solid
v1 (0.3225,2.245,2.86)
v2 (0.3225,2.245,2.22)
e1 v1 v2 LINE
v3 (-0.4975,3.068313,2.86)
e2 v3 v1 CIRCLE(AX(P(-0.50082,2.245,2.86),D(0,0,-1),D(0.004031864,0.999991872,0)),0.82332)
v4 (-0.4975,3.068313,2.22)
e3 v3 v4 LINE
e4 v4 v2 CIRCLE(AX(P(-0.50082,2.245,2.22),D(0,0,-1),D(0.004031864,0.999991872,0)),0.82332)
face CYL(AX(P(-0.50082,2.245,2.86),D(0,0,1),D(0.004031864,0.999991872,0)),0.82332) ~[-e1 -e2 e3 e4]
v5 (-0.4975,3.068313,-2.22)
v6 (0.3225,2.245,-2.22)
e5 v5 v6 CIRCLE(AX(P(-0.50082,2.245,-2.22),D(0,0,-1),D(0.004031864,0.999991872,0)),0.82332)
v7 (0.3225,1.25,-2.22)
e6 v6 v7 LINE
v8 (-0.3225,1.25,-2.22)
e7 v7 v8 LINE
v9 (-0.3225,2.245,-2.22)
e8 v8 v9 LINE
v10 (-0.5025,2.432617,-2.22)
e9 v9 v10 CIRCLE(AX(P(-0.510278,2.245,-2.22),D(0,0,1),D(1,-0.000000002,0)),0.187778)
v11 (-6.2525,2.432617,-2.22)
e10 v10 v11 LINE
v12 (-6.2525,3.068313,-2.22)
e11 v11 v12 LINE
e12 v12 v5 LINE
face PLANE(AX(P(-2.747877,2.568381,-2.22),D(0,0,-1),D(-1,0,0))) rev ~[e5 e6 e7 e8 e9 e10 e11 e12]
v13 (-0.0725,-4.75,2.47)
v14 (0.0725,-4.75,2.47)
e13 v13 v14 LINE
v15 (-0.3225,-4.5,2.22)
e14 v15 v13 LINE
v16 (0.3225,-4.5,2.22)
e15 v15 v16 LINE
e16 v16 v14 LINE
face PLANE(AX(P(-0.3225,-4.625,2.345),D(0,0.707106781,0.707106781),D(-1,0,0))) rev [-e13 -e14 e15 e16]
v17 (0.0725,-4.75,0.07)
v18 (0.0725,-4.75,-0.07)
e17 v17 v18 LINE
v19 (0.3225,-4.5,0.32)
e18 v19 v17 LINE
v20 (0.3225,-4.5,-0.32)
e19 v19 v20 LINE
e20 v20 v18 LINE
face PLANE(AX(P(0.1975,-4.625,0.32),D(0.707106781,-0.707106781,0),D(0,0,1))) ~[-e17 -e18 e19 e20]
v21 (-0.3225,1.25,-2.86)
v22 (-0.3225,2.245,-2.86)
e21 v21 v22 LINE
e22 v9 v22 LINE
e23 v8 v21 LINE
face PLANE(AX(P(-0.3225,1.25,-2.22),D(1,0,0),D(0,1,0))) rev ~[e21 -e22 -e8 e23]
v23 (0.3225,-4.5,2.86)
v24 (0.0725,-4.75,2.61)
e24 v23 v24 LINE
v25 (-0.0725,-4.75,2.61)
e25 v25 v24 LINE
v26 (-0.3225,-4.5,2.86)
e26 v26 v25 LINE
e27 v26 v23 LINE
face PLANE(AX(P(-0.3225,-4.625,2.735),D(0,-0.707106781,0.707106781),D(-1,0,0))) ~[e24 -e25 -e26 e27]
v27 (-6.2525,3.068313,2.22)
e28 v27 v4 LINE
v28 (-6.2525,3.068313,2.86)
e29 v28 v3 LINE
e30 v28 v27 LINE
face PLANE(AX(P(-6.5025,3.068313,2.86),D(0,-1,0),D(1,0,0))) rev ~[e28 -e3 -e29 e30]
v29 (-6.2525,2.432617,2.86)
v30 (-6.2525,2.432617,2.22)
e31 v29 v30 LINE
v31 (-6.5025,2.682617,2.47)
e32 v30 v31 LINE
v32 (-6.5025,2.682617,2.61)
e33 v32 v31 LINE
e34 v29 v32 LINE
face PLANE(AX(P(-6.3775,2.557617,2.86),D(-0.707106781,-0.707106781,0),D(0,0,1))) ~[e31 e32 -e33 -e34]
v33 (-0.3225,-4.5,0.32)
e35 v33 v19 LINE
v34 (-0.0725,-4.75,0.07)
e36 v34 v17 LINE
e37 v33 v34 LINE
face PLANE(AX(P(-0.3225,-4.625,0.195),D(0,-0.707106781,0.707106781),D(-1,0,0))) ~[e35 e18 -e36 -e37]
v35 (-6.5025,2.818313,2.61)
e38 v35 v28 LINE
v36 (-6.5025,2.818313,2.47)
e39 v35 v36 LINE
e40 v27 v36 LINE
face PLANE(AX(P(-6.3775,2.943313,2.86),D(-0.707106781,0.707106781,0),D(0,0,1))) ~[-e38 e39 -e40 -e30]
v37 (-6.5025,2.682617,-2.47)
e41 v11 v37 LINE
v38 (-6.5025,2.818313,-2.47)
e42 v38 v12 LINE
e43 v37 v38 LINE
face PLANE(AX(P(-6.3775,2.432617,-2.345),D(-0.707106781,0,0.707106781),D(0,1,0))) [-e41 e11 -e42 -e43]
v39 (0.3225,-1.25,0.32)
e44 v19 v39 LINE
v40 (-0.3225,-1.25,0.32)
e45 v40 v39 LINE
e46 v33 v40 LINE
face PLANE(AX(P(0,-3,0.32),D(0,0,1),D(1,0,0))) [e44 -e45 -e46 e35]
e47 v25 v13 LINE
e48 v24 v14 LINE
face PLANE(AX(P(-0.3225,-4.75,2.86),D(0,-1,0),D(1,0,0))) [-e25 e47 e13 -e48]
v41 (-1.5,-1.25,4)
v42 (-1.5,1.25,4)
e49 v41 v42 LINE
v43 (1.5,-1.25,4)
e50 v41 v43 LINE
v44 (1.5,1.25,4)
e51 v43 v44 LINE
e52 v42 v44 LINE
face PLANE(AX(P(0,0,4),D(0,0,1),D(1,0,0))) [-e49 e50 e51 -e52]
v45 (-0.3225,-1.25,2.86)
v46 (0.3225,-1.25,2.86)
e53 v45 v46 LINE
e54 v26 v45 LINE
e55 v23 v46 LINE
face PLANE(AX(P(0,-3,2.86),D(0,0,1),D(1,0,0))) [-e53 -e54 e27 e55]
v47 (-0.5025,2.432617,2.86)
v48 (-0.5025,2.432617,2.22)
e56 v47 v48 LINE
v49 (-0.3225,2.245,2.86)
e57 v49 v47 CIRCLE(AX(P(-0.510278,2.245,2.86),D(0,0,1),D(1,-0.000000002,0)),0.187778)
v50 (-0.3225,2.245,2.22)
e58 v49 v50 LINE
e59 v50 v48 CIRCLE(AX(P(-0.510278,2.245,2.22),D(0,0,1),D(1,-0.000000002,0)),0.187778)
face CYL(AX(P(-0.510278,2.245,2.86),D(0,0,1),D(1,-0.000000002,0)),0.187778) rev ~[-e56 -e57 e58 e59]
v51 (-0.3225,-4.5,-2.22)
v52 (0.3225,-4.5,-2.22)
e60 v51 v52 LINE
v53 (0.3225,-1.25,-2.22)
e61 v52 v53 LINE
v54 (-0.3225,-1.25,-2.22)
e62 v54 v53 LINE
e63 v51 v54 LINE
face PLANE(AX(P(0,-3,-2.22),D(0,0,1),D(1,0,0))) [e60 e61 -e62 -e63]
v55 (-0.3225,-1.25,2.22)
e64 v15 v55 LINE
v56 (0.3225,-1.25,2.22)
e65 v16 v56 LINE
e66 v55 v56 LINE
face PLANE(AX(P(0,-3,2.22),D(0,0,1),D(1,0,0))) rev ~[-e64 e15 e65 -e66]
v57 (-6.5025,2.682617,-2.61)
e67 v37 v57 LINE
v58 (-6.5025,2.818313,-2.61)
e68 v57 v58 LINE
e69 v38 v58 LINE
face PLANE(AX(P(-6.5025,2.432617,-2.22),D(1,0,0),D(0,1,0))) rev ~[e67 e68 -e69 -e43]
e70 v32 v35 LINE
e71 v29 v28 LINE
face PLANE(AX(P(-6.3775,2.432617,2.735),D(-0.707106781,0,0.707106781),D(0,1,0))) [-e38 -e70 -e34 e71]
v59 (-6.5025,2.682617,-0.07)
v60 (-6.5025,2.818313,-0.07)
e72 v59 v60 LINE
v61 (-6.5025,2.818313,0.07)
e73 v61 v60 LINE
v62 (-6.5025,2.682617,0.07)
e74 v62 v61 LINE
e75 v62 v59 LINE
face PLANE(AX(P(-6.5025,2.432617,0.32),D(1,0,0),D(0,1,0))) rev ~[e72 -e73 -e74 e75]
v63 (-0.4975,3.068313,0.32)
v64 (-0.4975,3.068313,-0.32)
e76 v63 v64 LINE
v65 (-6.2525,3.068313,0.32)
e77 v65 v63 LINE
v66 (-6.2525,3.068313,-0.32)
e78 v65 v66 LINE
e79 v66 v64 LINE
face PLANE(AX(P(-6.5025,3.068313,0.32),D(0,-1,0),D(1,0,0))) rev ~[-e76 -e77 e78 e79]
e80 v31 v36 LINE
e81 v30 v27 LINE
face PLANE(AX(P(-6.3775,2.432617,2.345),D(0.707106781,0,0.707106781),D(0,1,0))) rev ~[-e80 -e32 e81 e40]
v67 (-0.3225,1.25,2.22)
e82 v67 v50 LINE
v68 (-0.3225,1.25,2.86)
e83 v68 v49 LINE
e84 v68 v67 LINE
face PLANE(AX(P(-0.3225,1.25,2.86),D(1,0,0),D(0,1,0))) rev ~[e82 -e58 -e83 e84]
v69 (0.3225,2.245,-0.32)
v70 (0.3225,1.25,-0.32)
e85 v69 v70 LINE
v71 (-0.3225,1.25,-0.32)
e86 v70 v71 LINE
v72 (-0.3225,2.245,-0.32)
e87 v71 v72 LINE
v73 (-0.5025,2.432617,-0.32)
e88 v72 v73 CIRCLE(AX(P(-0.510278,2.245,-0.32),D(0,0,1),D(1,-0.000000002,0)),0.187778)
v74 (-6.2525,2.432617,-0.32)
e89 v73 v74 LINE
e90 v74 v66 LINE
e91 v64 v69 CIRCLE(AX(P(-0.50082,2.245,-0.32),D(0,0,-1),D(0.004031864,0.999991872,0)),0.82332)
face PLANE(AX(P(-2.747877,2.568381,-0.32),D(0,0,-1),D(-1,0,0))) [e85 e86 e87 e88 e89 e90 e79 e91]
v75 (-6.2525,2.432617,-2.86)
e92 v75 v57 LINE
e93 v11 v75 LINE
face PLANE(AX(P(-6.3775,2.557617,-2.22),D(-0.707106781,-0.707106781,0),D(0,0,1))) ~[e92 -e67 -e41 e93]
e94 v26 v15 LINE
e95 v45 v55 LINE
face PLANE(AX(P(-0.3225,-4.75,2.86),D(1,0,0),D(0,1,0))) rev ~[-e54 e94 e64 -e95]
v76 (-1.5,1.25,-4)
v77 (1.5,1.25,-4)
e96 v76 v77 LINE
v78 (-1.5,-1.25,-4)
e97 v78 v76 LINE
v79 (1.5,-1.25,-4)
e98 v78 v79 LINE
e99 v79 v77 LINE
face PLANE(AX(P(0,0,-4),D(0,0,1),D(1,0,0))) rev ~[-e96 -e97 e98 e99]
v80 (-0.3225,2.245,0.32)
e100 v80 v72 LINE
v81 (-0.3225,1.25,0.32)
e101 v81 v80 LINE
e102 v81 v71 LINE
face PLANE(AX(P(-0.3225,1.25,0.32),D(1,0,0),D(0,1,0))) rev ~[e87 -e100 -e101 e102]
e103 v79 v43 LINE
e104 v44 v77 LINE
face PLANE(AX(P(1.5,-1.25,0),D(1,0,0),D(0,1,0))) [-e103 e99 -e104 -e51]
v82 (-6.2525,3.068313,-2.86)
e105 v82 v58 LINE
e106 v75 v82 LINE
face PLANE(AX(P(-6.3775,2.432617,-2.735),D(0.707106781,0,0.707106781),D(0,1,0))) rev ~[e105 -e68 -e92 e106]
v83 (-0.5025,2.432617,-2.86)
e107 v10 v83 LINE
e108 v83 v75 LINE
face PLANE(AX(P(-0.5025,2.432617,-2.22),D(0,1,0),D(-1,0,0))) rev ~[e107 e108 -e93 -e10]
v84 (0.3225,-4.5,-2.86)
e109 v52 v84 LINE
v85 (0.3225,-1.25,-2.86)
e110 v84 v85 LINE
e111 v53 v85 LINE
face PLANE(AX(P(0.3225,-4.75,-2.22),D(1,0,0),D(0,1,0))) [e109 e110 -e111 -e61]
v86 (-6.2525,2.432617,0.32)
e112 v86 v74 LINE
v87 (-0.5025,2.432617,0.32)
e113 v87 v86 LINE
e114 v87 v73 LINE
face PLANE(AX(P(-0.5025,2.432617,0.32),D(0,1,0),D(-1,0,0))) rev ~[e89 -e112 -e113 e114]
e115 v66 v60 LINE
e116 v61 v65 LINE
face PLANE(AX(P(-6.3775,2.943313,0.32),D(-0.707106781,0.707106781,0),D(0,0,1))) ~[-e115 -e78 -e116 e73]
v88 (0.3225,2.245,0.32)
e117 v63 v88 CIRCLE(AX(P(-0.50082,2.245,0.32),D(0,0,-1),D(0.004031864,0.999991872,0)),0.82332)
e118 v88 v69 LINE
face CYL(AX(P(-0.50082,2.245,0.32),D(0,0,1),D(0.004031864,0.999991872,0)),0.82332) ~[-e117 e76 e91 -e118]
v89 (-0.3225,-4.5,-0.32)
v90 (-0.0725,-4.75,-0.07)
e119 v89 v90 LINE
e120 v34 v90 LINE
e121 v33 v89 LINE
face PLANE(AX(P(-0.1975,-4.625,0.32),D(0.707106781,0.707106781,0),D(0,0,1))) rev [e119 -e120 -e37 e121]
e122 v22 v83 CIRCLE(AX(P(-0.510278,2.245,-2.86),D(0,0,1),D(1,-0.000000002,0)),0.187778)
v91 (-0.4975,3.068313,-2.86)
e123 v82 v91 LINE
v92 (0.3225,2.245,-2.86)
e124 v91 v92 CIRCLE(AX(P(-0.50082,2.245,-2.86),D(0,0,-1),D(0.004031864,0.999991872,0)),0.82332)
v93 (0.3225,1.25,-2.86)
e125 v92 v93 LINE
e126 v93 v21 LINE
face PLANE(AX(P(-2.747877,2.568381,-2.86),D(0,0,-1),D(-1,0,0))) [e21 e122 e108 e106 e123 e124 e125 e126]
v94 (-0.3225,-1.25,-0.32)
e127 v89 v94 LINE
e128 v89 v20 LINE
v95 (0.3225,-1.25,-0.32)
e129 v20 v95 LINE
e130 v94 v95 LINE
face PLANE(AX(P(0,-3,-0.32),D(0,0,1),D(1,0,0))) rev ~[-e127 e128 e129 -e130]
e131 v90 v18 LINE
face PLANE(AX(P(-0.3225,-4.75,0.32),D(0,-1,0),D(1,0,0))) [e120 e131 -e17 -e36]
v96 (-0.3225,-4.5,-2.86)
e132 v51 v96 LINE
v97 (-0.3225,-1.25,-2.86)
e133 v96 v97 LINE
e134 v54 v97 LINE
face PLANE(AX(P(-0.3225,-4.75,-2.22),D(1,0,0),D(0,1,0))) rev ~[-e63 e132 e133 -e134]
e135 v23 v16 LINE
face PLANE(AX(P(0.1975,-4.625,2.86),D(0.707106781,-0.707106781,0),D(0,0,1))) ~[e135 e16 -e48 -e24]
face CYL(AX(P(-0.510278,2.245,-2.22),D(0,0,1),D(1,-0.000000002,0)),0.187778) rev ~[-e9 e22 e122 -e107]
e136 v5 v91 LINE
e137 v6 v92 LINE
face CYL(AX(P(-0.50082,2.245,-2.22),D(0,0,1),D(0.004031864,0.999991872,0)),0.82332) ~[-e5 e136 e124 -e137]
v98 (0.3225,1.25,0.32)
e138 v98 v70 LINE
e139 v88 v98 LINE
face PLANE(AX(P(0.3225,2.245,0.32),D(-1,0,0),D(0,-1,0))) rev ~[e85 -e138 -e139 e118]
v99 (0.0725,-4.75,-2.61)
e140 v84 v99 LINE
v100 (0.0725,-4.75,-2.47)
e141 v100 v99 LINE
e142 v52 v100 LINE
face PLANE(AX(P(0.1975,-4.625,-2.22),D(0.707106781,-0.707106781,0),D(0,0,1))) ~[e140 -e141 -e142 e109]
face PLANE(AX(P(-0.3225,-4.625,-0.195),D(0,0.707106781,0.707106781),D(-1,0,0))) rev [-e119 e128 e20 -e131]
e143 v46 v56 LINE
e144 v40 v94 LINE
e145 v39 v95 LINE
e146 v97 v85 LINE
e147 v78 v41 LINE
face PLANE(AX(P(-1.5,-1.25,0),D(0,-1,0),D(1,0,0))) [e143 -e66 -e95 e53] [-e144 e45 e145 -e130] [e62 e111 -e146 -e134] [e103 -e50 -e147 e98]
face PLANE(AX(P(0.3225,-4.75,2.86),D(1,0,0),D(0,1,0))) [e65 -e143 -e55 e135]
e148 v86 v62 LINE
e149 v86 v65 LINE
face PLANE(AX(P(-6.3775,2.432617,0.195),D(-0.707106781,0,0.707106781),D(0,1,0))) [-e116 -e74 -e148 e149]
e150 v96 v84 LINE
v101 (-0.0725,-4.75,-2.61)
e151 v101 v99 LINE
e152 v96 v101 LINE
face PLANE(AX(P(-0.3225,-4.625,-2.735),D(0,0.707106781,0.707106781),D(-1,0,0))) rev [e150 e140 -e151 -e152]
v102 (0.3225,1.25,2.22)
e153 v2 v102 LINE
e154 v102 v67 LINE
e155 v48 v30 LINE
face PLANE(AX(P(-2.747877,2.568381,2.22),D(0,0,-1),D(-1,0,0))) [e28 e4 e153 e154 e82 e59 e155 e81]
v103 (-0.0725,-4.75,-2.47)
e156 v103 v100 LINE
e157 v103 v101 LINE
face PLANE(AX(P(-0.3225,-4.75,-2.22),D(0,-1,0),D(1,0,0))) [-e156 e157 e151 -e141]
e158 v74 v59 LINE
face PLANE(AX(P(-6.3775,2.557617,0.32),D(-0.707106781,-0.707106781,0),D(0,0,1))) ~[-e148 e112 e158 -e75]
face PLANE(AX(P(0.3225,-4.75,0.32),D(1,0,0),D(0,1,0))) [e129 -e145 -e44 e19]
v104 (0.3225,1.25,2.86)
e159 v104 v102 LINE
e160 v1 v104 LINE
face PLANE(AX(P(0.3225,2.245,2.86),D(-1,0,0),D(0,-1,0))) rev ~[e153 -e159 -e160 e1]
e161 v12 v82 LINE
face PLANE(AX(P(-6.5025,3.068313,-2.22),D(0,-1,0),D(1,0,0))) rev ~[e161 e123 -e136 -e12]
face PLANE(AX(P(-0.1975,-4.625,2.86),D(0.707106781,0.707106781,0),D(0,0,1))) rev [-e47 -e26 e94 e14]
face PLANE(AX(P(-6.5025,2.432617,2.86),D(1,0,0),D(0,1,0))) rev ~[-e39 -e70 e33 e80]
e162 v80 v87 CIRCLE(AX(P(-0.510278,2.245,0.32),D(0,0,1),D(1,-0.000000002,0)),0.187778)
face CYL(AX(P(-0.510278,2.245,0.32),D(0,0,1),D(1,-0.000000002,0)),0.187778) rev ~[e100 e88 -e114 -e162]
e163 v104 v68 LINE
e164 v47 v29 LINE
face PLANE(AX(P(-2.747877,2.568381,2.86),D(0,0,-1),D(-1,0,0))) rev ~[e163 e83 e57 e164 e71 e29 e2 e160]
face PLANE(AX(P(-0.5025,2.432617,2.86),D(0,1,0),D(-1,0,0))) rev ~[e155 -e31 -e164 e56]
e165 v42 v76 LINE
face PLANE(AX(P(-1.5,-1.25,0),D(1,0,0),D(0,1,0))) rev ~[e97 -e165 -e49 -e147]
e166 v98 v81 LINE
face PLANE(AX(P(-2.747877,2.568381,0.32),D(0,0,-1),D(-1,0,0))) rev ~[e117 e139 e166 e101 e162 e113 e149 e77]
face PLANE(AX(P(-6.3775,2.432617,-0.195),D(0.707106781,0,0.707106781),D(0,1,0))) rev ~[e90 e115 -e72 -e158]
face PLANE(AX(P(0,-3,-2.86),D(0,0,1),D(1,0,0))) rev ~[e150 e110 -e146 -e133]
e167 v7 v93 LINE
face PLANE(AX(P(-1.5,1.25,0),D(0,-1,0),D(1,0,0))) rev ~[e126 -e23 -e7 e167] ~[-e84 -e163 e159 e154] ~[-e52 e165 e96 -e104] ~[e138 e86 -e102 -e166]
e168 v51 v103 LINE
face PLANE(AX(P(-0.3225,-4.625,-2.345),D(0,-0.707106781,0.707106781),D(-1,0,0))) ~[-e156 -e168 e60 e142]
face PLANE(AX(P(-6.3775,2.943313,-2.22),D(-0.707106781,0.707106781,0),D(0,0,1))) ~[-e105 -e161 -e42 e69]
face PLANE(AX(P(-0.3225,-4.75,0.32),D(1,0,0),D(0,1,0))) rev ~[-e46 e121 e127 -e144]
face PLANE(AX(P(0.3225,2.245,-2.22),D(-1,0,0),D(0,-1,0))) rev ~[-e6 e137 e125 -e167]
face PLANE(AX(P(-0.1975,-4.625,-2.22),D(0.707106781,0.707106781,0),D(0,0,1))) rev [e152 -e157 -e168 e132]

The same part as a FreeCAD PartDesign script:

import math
import FreeCAD as App
import Part
import Sketcher

V = App.Vector
Q = App.Units.Quantity


def edges_at(feature, points):
    """Names of the edges that pass closest to the given points."""
    edges = feature.Shape.Edges
    near = lambda p: min(range(len(edges)), key=lambda i: edges[i].distToShape(Part.Vertex(*p))[0])
    return sorted({f"Edge{near(p) + 1}" for p in points})


def add_polygon(sketch, points):
    """Adds a closed chain of lines whose ends are joined by coincident constraints."""
    first, n = sketch.GeometryCount, len(points)
    for a, b in zip(points, points[1:] + points[:1]):
        sketch.addGeometry(Part.LineSegment(App.Vector(*a, 0), App.Vector(*b, 0)), False)
    for i in range(n):
        sketch.addConstraint(Sketcher.Constraint("Coincident", first + i, 2, first + (i + 1) % n, 1))

doc = App.newDocument("Part")
params = doc.addObject("Spreadsheet::Sheet", "Params")
for row, (alias, value) in enumerate([
    ("sketch1_width", "3 mm"),
    ("sketch1_height", "2.5 mm"),
    ("pad1_length", "8 mm"),
    ("sketch2_width", "6 mm"),
    ("sketch2_height", "3.5 mm"),
    ("pad2_length", "0.64 mm"),
    ("linearpattern_pitch", "2.54 mm"),
    ("chamfer_size", "0.25 mm"),
], start=1):
    params.set(f"A{row}", alias)
    params.set(f"B{row}", "=" + value)
    params.setAlias(f"B{row}", alias)

body = doc.addObject("PartDesign::Body", "Body")

sketch1 = body.newObject("Sketcher::SketchObject", "Sketch")
sketch1.AttachmentSupport = (doc.getObject("XY_Plane"), [""])
sketch1.MapMode = "FlatFace"
add_polygon(sketch1, [(-1.5, 1.2), (-1.5, -1.2), (1.5, -1.2), (1.5, 1.2)])
sketch1.addConstraint(Sketcher.Constraint("Vertical", 0))
sketch1.addConstraint(Sketcher.Constraint("Horizontal", 1))
sketch1.addConstraint(Sketcher.Constraint("Vertical", 2))
sketch1.addConstraint(Sketcher.Constraint("Horizontal", 3))
sketch1.addConstraint(Sketcher.Constraint("Symmetric", 0, 2, 2, 2, -1, 1))
sketch1.addConstraint(Sketcher.Constraint("DistanceX", 1, 1, 1, 2, Q("3 mm")))
sketch1.addConstraint(Sketcher.Constraint("DistanceY", 0, 2, 0, 1, Q("2.5 mm")))
sketch1.setExpression("Constraints[9]", "Params.sketch1_width")
sketch1.setExpression("Constraints[10]", "Params.sketch1_height")
pad1 = body.newObject("PartDesign::Pad", "Pad")
pad1.Profile = sketch1
pad1.setExpression("Length", "Params.pad1_length")
pad1.Midplane = True

sketch2 = body.newObject("Sketcher::SketchObject", "Sketch001")
sketch2.AttachmentSupport = (doc.getObject("XY_Plane"), [""])
sketch2.MapMode = "FlatFace"
sketch2.AttachmentOffset = App.Placement(V(0, 0, 2.86), App.Rotation())
sketch2.addGeometry(Part.LineSegment(V(-0.32, 2.25, 0), V(-0.32, 1.25, 0)), False)
sketch2.addGeometry(Part.LineSegment(V(-0.32, 1.25, 0), V(0.32, 1.25, 0)), False)
sketch2.addGeometry(Part.LineSegment(V(0.32, 1.25, 0), V(0.32, 2.25, 0)), False)
sketch2.addGeometry(Part.ArcOfCircle(Part.Circle(V(-0.5, 2.25, 0), V(0, 0, 1), 0.82), math.radians(0), math.radians(90)), False)
sketch2.addGeometry(Part.LineSegment(V(-0.5, 3.07, 0), V(-6.5, 3.07, 0)), False)
sketch2.addGeometry(Part.LineSegment(V(-6.5, 3.07, 0), V(-6.5, 2.43, 0)), False)
sketch2.addGeometry(Part.LineSegment(V(-6.5, 2.43, 0), V(-0.5, 2.43, 0)), False)
sketch2.addGeometry(Part.ArcOfCircle(Part.Circle(V(-0.51, 2.25, 0), V(0, 0, 1), 0.19), math.radians(0), math.radians(88)), False)
add_polygon(sketch2, [(-0.32, -1.25), (-0.32, -4.75), (0.32, -4.75), (0.32, -1.25)])
sketch2.addConstraint(Sketcher.Constraint("Coincident", 0, 2, 1, 1))
sketch2.addConstraint(Sketcher.Constraint("Coincident", 1, 2, 2, 1))
sketch2.addConstraint(Sketcher.Constraint("Tangent", 2, 2, 3, 1))
sketch2.addConstraint(Sketcher.Constraint("Coincident", 3, 2, 4, 1))
sketch2.addConstraint(Sketcher.Constraint("Coincident", 4, 2, 5, 1))
sketch2.addConstraint(Sketcher.Constraint("Coincident", 5, 2, 6, 1))
sketch2.addConstraint(Sketcher.Constraint("Coincident", 6, 2, 7, 2))
sketch2.addConstraint(Sketcher.Constraint("Tangent", 7, 1, 0, 1))
sketch2.addConstraint(Sketcher.Constraint("Vertical", 0))
sketch2.addConstraint(Sketcher.Constraint("Horizontal", 1))
sketch2.addConstraint(Sketcher.Constraint("Vertical", 2))
sketch2.addConstraint(Sketcher.Constraint("Horizontal", 4))
sketch2.addConstraint(Sketcher.Constraint("Vertical", 5))
sketch2.addConstraint(Sketcher.Constraint("Horizontal", 6))
sketch2.addConstraint(Sketcher.Constraint("Vertical", 8))
sketch2.addConstraint(Sketcher.Constraint("Horizontal", 9))
sketch2.addConstraint(Sketcher.Constraint("Vertical", 10))
sketch2.addConstraint(Sketcher.Constraint("Horizontal", 11))
sketch2.addConstraint(Sketcher.Constraint("Symmetric", 0, 2, 10, 2, -1, 1))
sketch2.addConstraint(Sketcher.Constraint("Symmetric", 2, 2, 7, 1, -2))
sketch2.addConstraint(Sketcher.Constraint("Vertical", 7, 1, 8, 2))
sketch2.addConstraint(Sketcher.Constraint("DistanceX", 6, 1, 6, 2, Q("6 mm")))
sketch2.addConstraint(Sketcher.Constraint("DistanceY", 8, 2, 8, 1, Q("3.5 mm")))
sketch2.addConstraint(Sketcher.Constraint("DistanceY", 8, 2, 0, 2, Q("6 mm")))
sketch2.addConstraint(Sketcher.Constraint("DistanceX", 1, 1, 1, 2, Q("0.645 mm")))
sketch2.addConstraint(Sketcher.Constraint("DistanceX", 4, 2, 4, 1, Q("6.005 mm")))
sketch2.addConstraint(Sketcher.Constraint("DistanceY", 0, 2, 0, 1, Q("0.995 mm")))
sketch2.addConstraint(Sketcher.Constraint("Radius", 3, Q("0.82332 mm")))
sketch2.addConstraint(Sketcher.Constraint("DistanceX", 3, 2, 2, 2, Q("0.82 mm")))
sketch2.addConstraint(Sketcher.Constraint("Radius", 7, Q("0.187778 mm")))
sketch2.setExpression("Constraints[25]", "Params.sketch2_width")
sketch2.setExpression("Constraints[26]", "Params.sketch2_height")
pad2 = body.newObject("PartDesign::Pad", "Pad001")
pad2.Profile = sketch2
pad2.setExpression("Length", "Params.pad2_length")
pad2.Reversed = True
doc.recompute()

linearpattern = body.newObject("PartDesign::LinearPattern", "LinearPattern")
linearpattern.Originals = [pad2]
linearpattern.Direction = (doc.getObject("Z_Axis"), [""])
linearpattern.Mode = "offset"
linearpattern.setExpression("Offset", "Params.linearpattern_pitch")
linearpattern.Occurrences = 3
linearpattern.Reversed = True
body.Tip = linearpattern
doc.recompute()

chamfer = body.newObject("PartDesign::Chamfer", "Chamfer")
chamfer.Base = (linearpattern, edges_at(linearpattern, [
    (-6.503, 2.75, 2.22),
    (-6.503, 2.433, 2.54),
    (-6.503, 3.068, 2.54),
    (-6.503, 2.75, 2.86),
    (0, -4.75, 2.22),
    (0.323, -4.75, 2.54),
    (-0.323, -4.75, 2.54),
    (0, -4.75, 2.86),
    (-6.503, 2.75, -0.32),
    (-6.503, 2.433, 0),
    (-6.503, 3.068, 0),
    (-6.503, 2.75, 0.32),
    (0, -4.75, -0.32),
    (0.323, -4.75, 0),
    (-0.323, -4.75, 0),
    (0, -4.75, 0.32),
    (-6.503, 2.75, -2.86),
    (-6.503, 2.433, -2.54),
    (-6.503, 3.068, -2.54),
    (-6.503, 2.75, -2.22),
    (0, -4.75, -2.86),
    (0.323, -4.75, -2.54),
    (-0.323, -4.75, -2.54),
    (0, -4.75, -2.22),
]))
chamfer.setExpression("Size", "Params.chamfer_size")

doc.recompute()
